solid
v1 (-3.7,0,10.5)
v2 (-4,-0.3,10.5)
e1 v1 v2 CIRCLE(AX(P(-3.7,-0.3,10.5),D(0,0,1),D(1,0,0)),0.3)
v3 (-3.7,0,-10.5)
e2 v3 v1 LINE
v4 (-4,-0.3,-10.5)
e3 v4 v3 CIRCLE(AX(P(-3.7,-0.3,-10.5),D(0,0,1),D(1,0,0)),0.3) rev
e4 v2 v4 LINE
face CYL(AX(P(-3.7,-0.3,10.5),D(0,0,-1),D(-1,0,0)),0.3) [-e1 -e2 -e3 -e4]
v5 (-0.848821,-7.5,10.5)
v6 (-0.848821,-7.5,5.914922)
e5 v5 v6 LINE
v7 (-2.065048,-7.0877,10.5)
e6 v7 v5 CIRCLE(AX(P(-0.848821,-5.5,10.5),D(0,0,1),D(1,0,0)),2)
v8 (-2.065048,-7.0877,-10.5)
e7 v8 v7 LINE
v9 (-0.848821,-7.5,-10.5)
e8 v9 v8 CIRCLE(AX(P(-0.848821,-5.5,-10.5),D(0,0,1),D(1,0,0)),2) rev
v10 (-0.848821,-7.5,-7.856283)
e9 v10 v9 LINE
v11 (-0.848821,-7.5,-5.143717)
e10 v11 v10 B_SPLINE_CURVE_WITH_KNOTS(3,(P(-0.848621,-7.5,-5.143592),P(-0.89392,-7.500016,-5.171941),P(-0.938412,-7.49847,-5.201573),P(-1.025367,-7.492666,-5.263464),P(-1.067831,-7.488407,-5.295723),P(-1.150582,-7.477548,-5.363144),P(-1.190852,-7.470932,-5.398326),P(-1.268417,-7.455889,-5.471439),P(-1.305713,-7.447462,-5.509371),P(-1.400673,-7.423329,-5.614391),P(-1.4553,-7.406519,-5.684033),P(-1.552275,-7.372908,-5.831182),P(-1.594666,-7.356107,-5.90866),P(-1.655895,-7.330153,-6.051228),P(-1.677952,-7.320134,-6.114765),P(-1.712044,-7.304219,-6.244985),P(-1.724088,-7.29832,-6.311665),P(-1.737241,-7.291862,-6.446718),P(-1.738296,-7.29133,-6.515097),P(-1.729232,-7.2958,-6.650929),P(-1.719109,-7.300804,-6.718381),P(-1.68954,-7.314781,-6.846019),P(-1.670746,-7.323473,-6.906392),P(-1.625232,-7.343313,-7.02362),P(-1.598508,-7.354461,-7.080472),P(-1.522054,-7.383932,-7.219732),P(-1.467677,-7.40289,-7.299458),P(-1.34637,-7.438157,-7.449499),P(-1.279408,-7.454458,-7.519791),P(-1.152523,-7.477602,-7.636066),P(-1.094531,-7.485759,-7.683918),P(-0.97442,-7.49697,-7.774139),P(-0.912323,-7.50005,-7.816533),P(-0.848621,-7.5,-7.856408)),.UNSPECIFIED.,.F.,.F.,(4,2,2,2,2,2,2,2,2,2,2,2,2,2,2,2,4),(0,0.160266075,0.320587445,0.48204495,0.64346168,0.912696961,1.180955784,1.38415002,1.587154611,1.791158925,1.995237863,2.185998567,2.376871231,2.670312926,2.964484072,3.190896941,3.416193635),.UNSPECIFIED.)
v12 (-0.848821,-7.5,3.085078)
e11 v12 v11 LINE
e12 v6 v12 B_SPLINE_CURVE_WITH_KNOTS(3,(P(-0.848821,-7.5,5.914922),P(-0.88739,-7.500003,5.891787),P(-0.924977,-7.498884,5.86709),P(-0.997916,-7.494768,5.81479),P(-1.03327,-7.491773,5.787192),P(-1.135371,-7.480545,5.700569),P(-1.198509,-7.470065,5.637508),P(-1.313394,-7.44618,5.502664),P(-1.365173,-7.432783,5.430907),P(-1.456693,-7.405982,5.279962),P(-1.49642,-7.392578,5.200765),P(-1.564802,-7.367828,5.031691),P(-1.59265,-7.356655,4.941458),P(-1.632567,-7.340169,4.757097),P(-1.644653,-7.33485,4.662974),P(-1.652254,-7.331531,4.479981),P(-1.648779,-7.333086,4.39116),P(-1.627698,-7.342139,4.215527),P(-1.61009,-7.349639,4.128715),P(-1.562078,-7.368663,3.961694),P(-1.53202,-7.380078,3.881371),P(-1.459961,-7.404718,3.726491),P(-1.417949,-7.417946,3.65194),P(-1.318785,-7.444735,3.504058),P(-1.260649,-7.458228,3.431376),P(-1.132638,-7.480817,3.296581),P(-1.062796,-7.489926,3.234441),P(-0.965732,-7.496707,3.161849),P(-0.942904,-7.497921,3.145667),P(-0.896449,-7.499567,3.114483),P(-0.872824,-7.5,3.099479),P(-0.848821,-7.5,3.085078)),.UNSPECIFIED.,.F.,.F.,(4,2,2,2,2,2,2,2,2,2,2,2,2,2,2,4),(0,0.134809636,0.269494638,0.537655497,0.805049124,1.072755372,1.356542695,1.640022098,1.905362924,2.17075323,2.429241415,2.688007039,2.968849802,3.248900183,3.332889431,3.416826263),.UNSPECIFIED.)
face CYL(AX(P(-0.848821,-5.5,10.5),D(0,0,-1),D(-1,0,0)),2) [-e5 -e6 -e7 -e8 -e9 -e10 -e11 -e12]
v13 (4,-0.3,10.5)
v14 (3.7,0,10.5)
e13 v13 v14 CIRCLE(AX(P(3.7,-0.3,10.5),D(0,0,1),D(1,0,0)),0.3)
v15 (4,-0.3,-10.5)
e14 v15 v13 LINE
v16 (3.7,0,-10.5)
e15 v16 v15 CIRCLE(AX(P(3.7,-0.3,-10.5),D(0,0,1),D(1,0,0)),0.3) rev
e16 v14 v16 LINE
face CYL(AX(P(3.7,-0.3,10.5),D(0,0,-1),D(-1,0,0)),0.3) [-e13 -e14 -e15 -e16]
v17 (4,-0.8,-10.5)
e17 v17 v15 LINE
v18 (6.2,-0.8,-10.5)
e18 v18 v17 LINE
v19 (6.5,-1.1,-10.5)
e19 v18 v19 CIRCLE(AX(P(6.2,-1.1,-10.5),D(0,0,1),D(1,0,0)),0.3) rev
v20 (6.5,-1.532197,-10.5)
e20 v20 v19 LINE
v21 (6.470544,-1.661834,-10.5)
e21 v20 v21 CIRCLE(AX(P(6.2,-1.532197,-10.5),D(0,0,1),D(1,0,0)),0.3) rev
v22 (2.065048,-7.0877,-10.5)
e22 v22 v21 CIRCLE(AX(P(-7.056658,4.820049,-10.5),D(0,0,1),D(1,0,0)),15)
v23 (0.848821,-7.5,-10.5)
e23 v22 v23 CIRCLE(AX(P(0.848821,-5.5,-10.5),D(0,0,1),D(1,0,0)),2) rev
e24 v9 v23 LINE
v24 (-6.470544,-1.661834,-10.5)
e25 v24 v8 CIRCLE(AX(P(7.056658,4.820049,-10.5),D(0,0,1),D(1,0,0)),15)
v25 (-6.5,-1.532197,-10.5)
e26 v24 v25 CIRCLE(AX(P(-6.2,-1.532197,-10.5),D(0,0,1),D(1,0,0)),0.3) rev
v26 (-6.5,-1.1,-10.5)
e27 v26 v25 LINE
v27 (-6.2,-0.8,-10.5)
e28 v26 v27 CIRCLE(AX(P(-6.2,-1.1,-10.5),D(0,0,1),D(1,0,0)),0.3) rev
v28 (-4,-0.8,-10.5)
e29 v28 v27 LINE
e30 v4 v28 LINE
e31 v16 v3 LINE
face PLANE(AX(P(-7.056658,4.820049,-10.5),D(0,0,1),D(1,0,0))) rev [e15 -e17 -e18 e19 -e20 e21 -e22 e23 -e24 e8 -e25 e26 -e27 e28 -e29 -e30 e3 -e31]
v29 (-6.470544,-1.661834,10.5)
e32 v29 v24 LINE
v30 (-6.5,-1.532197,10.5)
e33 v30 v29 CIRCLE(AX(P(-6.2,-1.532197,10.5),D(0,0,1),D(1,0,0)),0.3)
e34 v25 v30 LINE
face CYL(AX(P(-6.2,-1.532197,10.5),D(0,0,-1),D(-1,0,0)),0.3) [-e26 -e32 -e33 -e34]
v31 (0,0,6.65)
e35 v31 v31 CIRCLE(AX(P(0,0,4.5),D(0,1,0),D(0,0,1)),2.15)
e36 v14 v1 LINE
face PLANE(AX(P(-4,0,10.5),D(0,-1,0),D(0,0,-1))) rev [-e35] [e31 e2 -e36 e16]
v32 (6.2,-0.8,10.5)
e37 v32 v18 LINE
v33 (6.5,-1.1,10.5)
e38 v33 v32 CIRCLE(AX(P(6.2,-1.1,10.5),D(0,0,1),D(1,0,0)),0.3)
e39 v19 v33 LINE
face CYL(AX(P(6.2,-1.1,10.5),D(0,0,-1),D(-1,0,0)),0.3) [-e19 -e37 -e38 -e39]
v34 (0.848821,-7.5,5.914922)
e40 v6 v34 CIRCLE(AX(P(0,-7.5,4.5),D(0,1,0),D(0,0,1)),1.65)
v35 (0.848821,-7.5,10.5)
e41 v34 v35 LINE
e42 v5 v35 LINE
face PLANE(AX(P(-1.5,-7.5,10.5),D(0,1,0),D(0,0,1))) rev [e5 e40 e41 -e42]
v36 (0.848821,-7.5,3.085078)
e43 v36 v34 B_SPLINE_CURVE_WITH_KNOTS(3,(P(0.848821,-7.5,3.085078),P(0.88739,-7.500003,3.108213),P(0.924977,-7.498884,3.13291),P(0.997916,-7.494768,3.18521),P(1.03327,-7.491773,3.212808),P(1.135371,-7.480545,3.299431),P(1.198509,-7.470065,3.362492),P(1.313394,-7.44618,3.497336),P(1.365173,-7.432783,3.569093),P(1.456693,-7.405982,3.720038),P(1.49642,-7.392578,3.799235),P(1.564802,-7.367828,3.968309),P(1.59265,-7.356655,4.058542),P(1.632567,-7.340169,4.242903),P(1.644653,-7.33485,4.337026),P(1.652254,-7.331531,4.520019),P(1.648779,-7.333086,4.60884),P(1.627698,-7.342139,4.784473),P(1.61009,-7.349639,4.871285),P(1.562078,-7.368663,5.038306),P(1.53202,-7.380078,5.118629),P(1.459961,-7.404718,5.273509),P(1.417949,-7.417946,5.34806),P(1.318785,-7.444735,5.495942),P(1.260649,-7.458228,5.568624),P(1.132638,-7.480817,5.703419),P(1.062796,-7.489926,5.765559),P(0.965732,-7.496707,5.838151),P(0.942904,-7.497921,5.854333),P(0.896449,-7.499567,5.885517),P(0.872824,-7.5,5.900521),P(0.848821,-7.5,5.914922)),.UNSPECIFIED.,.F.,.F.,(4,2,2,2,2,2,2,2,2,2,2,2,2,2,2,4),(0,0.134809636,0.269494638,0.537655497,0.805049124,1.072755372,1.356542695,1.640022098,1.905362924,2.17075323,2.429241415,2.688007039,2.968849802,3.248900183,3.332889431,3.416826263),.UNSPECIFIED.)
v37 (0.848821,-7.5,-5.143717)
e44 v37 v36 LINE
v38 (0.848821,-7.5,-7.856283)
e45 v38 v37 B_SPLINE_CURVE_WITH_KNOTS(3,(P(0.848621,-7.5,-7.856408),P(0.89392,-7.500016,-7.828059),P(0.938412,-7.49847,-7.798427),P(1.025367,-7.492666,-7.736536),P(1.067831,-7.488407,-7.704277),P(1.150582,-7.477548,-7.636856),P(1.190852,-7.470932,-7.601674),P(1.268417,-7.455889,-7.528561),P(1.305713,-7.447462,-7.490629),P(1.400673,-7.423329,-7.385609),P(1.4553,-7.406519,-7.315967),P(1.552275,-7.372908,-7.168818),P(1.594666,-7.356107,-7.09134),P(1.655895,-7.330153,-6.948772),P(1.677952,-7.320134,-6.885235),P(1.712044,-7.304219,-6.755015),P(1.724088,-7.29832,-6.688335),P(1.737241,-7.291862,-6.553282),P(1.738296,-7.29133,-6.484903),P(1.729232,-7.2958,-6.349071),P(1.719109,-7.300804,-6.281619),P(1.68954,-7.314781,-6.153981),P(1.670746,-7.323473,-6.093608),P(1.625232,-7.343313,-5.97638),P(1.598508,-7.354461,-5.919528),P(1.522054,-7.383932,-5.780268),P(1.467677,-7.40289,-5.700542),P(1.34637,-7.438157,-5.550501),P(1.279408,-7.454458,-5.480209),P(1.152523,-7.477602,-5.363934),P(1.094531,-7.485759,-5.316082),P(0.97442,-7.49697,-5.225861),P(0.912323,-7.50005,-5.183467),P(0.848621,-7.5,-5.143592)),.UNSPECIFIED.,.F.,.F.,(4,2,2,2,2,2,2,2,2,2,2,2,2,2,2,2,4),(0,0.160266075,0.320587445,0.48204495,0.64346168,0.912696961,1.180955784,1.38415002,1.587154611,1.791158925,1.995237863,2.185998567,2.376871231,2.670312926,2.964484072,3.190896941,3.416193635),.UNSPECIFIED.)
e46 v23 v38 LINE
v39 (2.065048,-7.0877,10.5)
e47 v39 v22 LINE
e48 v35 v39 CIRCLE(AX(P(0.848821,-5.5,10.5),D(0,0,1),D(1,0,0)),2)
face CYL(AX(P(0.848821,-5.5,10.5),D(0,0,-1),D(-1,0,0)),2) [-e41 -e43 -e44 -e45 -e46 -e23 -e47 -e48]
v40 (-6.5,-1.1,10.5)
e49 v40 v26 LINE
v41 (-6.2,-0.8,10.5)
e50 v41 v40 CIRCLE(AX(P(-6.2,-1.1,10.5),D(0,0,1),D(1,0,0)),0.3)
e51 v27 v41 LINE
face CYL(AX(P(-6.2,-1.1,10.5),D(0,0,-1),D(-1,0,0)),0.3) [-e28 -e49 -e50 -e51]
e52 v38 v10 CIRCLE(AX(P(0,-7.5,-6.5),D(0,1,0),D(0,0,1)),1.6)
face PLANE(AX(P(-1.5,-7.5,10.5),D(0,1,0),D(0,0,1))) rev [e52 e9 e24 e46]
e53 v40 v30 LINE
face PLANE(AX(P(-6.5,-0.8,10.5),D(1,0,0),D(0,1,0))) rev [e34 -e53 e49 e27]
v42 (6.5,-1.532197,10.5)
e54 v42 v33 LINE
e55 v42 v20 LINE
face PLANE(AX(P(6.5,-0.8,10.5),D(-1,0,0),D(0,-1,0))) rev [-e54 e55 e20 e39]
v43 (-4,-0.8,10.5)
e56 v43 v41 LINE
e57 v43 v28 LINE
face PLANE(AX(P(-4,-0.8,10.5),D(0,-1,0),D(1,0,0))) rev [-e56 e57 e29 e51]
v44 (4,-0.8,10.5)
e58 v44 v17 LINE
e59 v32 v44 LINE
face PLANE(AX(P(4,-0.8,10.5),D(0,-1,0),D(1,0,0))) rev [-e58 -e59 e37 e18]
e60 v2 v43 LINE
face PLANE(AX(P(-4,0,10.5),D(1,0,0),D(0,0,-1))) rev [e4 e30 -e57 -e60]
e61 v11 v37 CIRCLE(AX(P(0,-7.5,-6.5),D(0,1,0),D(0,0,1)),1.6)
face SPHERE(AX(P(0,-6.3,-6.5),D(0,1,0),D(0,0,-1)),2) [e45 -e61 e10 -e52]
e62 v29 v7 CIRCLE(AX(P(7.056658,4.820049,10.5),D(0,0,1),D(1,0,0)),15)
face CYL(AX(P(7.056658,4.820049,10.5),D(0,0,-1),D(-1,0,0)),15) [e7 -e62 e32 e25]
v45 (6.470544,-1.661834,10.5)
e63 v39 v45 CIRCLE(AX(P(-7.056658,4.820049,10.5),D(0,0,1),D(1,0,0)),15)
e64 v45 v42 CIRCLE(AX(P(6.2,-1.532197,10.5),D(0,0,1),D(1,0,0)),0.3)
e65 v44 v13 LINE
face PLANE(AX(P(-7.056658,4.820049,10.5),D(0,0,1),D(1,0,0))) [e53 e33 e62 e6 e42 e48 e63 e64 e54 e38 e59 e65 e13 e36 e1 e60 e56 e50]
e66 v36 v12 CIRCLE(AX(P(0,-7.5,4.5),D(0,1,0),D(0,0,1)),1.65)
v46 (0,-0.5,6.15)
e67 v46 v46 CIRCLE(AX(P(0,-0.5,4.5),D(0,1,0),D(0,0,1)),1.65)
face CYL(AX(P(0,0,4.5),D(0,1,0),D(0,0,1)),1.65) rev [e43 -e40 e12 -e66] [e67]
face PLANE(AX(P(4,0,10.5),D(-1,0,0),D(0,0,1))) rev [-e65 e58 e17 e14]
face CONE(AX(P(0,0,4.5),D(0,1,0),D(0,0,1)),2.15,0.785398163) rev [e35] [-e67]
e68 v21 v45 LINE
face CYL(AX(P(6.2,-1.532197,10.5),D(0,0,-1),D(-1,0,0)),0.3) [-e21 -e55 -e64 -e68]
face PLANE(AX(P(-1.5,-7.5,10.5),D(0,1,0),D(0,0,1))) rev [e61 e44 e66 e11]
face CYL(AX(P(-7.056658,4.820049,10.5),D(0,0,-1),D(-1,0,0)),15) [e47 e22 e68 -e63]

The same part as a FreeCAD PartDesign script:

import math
import FreeCAD as App
import Part
import Sketcher

V = App.Vector
Q = App.Units.Quantity


def edges_at(feature, points):
    """Names of the edges that pass closest to the given points."""
    edges = feature.Shape.Edges
    near = lambda p: min(range(len(edges)), key=lambda i: edges[i].distToShape(Part.Vertex(*p))[0])
    return sorted({f"Edge{near(p) + 1}" for p in points})

doc = App.newDocument("Part")
body = doc.addObject("PartDesign::Body", "Body")

sketch1 = doc.addObject("Sketcher::SketchObject", "Sketch")
body.addObject(sketch1)
sketch1.AttachmentSupport = (doc.XY_Plane, [""])
sketch1.MapMode = "FlatFace"
sketch1.addGeometry([
    Part.LineSegment(V(4, 0, 0), V(-4, 0, 0)),
    Part.LineSegment(V(-4, 0, 0), V(-4, -0.8, 0)),
    Part.LineSegment(V(-4, -0.8, 0), V(-6.5, -0.8, 0)),
    Part.LineSegment(V(-6.5, -0.8, 0), V(-6.5, -1.6, 0)),
    Part.ArcOfCircle(Part.Circle(V(7.056658, 4.820049, 0), V(0, 0, 1), 15), math.radians(-154.659091), math.radians(-124.781183)),
    Part.LineSegment(V(-1.5, -7.5, 0), V(1.5, -7.5, 0)),
    Part.ArcOfCircle(Part.Circle(V(-7.056658, 4.820049, 0), V(0, 0, 1), 15), math.radians(-55.218817), math.radians(-25.340909)),
    Part.LineSegment(V(6.5, -1.6, 0), V(6.5, -0.8, 0)),
    Part.LineSegment(V(6.5, -0.8, 0), V(4, -0.8, 0)),
    Part.LineSegment(V(4, -0.8, 0), V(4, 0, 0)),
], False)
sketch1.addConstraint([
    Sketcher.Constraint("Coincident", 0, 2, 1, 1),
    Sketcher.Constraint("Coincident", 1, 2, 2, 1),
    Sketcher.Constraint("Coincident", 2, 2, 3, 1),
    Sketcher.Constraint("Coincident", 3, 2, 4, 1),
    Sketcher.Constraint("Coincident", 4, 2, 5, 1),
    Sketcher.Constraint("Coincident", 5, 2, 6, 1),
    Sketcher.Constraint("Coincident", 6, 2, 7, 1),
    Sketcher.Constraint("Coincident", 7, 2, 8, 1),
    Sketcher.Constraint("Coincident", 8, 2, 9, 1),
    Sketcher.Constraint("Coincident", 9, 2, 0, 1),
    Sketcher.Constraint("Horizontal", 0),
    Sketcher.Constraint("Vertical", 1),
    Sketcher.Constraint("Horizontal", 2),
    Sketcher.Constraint("Vertical", 3),
    Sketcher.Constraint("Horizontal", 5),
    Sketcher.Constraint("Vertical", 7),
    Sketcher.Constraint("Horizontal", 8),
    Sketcher.Constraint("Vertical", 9),
    Sketcher.Constraint("Equal", 4, 6),
    Sketcher.Constraint("Symmetric", 0, 2, 9, 2, -1, 1),
    Sketcher.Constraint("Symmetric", 4, 3, 6, 3, -2),
    Sketcher.Constraint("Symmetric", 2, 2, 7, 2, -2),
    Sketcher.Constraint("Equal", 1, 3),
    Sketcher.Constraint("Radius", 4, Q("15 mm")),
    Sketcher.Constraint("DistanceX", 0, 2, 0, 1, Q("8 mm")),
    Sketcher.Constraint("DistanceX", 5, 1, 5, 2, Q("3 mm")),
    Sketcher.Constraint("DistanceX", 2, 2, 2, 1, Q("2.5 mm")),
    Sketcher.Constraint("DistanceY", 1, 2, 1, 1, Q("0.8 mm")),
    Sketcher.Constraint("DistanceY", 4, 2, -1, 1, Q("7.5 mm")),
])
pad1 = doc.addObject("PartDesign::Pad", "Pad")
body.addObject(pad1)
pad1.Profile = sketch1
pad1.Length = 21
pad1.Midplane = True
doc.recompute()

fillet = doc.addObject("PartDesign::Fillet", "Fillet")
body.addObject(fillet)
fillet.Base = (pad1, edges_at(pad1, [
    (6.5, -0.8, 0),
    (6.5, -1.6, 0),
    (-6.5, -1.6, 0),
    (-6.5, -0.8, 0),
    (-4, 0, 0),
    (4, 0, 0),
]))
fillet.Radius = 0.3
doc.recompute()

fillet2 = doc.addObject("PartDesign::Fillet", "Fillet001")
body.addObject(fillet2)
fillet2.Base = (fillet, edges_at(fillet, [(1.5, -7.5, 0), (-1.5, -7.5, 0)]))
fillet2.Radius = 2

sketch2 = doc.addObject("Sketcher::SketchObject", "Sketch001")
body.addObject(sketch2)
sketch2.AttachmentSupport = (doc.XZ_Plane, [""])
sketch2.MapMode = "FlatFace"
sketch2.addGeometry(Part.Circle(V(0, 4.5, 0), V(0, 0, 1), 1.65), False)
sketch2.addConstraint([
    Sketcher.Constraint("PointOnObject", 0, 3, -2),
    Sketcher.Constraint("Diameter", 0, Q("3.3 mm")),
    Sketcher.Constraint("DistanceY", -1, 1, 0, 3, Q("4.5 mm")),
])
doc.recompute()
hole = doc.addObject("PartDesign::Hole", "Hole")
body.addObject(hole)
hole.Profile = sketch2
hole.ThreadType = "None"
hole.Diameter = 3.3
hole.DepthType = "ThroughAll"
hole.HoleCutType = "Countersink"
hole.HoleCutDiameter = 4.3
hole.HoleCutCountersinkAngle = 90
hole.Reversed = True

sketch3 = doc.addObject("Sketcher::SketchObject", "Sketch002")
body.addObject(sketch3)
sketch3.AttachmentSupport = (doc.YZ_Plane, [""])
sketch3.MapMode = "FlatFace"
sketch3.addGeometry([
    Part.LineSegment(V(-8.3, -6.5, 0), V(-4.3, -6.5, 0)),
    Part.ArcOfCircle(Part.Circle(V(-6.3, -6.5, 0), V(0, 0, 1), 2), math.radians(0), math.radians(180)),
], False)
sketch3.addGeometry(Part.LineSegment(V(-4.3, -6.5, 0), V(-8.3, -6.5, 0)), True)
sketch3.addConstraint([
    Sketcher.Constraint("Coincident", 0, 1, 1, 2),
    Sketcher.Constraint("Coincident", 1, 1, 0, 2),
    Sketcher.Constraint("Horizontal", 0),
    Sketcher.Constraint("Horizontal", 2),
    Sketcher.Constraint("Coincident", 2, 1, 1, 1),
    Sketcher.Constraint("Horizontal", 1, 3, 0, 1),
    Sketcher.Constraint("Equal", 0, 2),
    Sketcher.Constraint("Radius", 1, Q("2 mm")),
    Sketcher.Constraint("DistanceX", 1, 3, -1, 1, Q("6.3 mm")),
    Sketcher.Constraint("DistanceY", 1, 3, -1, 1, Q("6.5 mm")),
])
revolution = doc.addObject("PartDesign::Revolution", "Revolution")
body.addObject(revolution)
revolution.Profile = sketch3
revolution.ReferenceAxis = (sketch3, ["Axis0"])
revolution.Angle = 360

doc.recompute()
